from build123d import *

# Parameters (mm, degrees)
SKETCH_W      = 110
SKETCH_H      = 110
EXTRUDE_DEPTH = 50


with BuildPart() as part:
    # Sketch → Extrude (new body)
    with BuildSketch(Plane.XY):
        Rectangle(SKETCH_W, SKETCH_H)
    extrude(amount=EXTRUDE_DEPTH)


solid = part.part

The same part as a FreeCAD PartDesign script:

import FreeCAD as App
import Part
import Sketcher


def add_polygon(sketch, points):
    """Adds a closed chain of lines whose ends are joined by coincident constraints."""
    first, n = sketch.GeometryCount, len(points)
    for a, b in zip(points, points[1:] + points[:1]):
        sketch.addGeometry(Part.LineSegment(App.Vector(*a, 0), App.Vector(*b, 0)), False)
    for i in range(n):
        sketch.addConstraint(Sketcher.Constraint("Coincident", first + i, 2, first + (i + 1) % n, 1))

doc = App.newDocument("Part")
body = doc.addObject("PartDesign::Body", "Body")

# Sketch on XY plane
sketch1 = body.newObject("Sketcher::SketchObject", "Sketch")
sketch1.AttachmentSupport = (doc.getObject("XY_Plane"), [""])
sketch1.MapMode = "FlatFace"
add_polygon(sketch1, [(-55, 55), (-55, -55), (55, -55), (55, 55)])  # lines 0-3
sketch1.addConstraint(Sketcher.Constraint("Vertical", 0))
sketch1.addConstraint(Sketcher.Constraint("Horizontal", 1))
sketch1.addConstraint(Sketcher.Constraint("Vertical", 2))
sketch1.addConstraint(Sketcher.Constraint("Horizontal", 3))
sketch1.addConstraint(Sketcher.Constraint("Symmetric", 0, 2, 2, 2, -1, 1))
sketch1.addConstraint(Sketcher.Constraint("Equal", 3, 0))
sketch1.addConstraint(Sketcher.Constraint("DistanceX", 1, 1, 1, 2, 110.0))
pad1 = body.newObject("PartDesign::Pad", "Pad")
pad1.Profile = sketch1
pad1.Length = 50

doc.recompute()
